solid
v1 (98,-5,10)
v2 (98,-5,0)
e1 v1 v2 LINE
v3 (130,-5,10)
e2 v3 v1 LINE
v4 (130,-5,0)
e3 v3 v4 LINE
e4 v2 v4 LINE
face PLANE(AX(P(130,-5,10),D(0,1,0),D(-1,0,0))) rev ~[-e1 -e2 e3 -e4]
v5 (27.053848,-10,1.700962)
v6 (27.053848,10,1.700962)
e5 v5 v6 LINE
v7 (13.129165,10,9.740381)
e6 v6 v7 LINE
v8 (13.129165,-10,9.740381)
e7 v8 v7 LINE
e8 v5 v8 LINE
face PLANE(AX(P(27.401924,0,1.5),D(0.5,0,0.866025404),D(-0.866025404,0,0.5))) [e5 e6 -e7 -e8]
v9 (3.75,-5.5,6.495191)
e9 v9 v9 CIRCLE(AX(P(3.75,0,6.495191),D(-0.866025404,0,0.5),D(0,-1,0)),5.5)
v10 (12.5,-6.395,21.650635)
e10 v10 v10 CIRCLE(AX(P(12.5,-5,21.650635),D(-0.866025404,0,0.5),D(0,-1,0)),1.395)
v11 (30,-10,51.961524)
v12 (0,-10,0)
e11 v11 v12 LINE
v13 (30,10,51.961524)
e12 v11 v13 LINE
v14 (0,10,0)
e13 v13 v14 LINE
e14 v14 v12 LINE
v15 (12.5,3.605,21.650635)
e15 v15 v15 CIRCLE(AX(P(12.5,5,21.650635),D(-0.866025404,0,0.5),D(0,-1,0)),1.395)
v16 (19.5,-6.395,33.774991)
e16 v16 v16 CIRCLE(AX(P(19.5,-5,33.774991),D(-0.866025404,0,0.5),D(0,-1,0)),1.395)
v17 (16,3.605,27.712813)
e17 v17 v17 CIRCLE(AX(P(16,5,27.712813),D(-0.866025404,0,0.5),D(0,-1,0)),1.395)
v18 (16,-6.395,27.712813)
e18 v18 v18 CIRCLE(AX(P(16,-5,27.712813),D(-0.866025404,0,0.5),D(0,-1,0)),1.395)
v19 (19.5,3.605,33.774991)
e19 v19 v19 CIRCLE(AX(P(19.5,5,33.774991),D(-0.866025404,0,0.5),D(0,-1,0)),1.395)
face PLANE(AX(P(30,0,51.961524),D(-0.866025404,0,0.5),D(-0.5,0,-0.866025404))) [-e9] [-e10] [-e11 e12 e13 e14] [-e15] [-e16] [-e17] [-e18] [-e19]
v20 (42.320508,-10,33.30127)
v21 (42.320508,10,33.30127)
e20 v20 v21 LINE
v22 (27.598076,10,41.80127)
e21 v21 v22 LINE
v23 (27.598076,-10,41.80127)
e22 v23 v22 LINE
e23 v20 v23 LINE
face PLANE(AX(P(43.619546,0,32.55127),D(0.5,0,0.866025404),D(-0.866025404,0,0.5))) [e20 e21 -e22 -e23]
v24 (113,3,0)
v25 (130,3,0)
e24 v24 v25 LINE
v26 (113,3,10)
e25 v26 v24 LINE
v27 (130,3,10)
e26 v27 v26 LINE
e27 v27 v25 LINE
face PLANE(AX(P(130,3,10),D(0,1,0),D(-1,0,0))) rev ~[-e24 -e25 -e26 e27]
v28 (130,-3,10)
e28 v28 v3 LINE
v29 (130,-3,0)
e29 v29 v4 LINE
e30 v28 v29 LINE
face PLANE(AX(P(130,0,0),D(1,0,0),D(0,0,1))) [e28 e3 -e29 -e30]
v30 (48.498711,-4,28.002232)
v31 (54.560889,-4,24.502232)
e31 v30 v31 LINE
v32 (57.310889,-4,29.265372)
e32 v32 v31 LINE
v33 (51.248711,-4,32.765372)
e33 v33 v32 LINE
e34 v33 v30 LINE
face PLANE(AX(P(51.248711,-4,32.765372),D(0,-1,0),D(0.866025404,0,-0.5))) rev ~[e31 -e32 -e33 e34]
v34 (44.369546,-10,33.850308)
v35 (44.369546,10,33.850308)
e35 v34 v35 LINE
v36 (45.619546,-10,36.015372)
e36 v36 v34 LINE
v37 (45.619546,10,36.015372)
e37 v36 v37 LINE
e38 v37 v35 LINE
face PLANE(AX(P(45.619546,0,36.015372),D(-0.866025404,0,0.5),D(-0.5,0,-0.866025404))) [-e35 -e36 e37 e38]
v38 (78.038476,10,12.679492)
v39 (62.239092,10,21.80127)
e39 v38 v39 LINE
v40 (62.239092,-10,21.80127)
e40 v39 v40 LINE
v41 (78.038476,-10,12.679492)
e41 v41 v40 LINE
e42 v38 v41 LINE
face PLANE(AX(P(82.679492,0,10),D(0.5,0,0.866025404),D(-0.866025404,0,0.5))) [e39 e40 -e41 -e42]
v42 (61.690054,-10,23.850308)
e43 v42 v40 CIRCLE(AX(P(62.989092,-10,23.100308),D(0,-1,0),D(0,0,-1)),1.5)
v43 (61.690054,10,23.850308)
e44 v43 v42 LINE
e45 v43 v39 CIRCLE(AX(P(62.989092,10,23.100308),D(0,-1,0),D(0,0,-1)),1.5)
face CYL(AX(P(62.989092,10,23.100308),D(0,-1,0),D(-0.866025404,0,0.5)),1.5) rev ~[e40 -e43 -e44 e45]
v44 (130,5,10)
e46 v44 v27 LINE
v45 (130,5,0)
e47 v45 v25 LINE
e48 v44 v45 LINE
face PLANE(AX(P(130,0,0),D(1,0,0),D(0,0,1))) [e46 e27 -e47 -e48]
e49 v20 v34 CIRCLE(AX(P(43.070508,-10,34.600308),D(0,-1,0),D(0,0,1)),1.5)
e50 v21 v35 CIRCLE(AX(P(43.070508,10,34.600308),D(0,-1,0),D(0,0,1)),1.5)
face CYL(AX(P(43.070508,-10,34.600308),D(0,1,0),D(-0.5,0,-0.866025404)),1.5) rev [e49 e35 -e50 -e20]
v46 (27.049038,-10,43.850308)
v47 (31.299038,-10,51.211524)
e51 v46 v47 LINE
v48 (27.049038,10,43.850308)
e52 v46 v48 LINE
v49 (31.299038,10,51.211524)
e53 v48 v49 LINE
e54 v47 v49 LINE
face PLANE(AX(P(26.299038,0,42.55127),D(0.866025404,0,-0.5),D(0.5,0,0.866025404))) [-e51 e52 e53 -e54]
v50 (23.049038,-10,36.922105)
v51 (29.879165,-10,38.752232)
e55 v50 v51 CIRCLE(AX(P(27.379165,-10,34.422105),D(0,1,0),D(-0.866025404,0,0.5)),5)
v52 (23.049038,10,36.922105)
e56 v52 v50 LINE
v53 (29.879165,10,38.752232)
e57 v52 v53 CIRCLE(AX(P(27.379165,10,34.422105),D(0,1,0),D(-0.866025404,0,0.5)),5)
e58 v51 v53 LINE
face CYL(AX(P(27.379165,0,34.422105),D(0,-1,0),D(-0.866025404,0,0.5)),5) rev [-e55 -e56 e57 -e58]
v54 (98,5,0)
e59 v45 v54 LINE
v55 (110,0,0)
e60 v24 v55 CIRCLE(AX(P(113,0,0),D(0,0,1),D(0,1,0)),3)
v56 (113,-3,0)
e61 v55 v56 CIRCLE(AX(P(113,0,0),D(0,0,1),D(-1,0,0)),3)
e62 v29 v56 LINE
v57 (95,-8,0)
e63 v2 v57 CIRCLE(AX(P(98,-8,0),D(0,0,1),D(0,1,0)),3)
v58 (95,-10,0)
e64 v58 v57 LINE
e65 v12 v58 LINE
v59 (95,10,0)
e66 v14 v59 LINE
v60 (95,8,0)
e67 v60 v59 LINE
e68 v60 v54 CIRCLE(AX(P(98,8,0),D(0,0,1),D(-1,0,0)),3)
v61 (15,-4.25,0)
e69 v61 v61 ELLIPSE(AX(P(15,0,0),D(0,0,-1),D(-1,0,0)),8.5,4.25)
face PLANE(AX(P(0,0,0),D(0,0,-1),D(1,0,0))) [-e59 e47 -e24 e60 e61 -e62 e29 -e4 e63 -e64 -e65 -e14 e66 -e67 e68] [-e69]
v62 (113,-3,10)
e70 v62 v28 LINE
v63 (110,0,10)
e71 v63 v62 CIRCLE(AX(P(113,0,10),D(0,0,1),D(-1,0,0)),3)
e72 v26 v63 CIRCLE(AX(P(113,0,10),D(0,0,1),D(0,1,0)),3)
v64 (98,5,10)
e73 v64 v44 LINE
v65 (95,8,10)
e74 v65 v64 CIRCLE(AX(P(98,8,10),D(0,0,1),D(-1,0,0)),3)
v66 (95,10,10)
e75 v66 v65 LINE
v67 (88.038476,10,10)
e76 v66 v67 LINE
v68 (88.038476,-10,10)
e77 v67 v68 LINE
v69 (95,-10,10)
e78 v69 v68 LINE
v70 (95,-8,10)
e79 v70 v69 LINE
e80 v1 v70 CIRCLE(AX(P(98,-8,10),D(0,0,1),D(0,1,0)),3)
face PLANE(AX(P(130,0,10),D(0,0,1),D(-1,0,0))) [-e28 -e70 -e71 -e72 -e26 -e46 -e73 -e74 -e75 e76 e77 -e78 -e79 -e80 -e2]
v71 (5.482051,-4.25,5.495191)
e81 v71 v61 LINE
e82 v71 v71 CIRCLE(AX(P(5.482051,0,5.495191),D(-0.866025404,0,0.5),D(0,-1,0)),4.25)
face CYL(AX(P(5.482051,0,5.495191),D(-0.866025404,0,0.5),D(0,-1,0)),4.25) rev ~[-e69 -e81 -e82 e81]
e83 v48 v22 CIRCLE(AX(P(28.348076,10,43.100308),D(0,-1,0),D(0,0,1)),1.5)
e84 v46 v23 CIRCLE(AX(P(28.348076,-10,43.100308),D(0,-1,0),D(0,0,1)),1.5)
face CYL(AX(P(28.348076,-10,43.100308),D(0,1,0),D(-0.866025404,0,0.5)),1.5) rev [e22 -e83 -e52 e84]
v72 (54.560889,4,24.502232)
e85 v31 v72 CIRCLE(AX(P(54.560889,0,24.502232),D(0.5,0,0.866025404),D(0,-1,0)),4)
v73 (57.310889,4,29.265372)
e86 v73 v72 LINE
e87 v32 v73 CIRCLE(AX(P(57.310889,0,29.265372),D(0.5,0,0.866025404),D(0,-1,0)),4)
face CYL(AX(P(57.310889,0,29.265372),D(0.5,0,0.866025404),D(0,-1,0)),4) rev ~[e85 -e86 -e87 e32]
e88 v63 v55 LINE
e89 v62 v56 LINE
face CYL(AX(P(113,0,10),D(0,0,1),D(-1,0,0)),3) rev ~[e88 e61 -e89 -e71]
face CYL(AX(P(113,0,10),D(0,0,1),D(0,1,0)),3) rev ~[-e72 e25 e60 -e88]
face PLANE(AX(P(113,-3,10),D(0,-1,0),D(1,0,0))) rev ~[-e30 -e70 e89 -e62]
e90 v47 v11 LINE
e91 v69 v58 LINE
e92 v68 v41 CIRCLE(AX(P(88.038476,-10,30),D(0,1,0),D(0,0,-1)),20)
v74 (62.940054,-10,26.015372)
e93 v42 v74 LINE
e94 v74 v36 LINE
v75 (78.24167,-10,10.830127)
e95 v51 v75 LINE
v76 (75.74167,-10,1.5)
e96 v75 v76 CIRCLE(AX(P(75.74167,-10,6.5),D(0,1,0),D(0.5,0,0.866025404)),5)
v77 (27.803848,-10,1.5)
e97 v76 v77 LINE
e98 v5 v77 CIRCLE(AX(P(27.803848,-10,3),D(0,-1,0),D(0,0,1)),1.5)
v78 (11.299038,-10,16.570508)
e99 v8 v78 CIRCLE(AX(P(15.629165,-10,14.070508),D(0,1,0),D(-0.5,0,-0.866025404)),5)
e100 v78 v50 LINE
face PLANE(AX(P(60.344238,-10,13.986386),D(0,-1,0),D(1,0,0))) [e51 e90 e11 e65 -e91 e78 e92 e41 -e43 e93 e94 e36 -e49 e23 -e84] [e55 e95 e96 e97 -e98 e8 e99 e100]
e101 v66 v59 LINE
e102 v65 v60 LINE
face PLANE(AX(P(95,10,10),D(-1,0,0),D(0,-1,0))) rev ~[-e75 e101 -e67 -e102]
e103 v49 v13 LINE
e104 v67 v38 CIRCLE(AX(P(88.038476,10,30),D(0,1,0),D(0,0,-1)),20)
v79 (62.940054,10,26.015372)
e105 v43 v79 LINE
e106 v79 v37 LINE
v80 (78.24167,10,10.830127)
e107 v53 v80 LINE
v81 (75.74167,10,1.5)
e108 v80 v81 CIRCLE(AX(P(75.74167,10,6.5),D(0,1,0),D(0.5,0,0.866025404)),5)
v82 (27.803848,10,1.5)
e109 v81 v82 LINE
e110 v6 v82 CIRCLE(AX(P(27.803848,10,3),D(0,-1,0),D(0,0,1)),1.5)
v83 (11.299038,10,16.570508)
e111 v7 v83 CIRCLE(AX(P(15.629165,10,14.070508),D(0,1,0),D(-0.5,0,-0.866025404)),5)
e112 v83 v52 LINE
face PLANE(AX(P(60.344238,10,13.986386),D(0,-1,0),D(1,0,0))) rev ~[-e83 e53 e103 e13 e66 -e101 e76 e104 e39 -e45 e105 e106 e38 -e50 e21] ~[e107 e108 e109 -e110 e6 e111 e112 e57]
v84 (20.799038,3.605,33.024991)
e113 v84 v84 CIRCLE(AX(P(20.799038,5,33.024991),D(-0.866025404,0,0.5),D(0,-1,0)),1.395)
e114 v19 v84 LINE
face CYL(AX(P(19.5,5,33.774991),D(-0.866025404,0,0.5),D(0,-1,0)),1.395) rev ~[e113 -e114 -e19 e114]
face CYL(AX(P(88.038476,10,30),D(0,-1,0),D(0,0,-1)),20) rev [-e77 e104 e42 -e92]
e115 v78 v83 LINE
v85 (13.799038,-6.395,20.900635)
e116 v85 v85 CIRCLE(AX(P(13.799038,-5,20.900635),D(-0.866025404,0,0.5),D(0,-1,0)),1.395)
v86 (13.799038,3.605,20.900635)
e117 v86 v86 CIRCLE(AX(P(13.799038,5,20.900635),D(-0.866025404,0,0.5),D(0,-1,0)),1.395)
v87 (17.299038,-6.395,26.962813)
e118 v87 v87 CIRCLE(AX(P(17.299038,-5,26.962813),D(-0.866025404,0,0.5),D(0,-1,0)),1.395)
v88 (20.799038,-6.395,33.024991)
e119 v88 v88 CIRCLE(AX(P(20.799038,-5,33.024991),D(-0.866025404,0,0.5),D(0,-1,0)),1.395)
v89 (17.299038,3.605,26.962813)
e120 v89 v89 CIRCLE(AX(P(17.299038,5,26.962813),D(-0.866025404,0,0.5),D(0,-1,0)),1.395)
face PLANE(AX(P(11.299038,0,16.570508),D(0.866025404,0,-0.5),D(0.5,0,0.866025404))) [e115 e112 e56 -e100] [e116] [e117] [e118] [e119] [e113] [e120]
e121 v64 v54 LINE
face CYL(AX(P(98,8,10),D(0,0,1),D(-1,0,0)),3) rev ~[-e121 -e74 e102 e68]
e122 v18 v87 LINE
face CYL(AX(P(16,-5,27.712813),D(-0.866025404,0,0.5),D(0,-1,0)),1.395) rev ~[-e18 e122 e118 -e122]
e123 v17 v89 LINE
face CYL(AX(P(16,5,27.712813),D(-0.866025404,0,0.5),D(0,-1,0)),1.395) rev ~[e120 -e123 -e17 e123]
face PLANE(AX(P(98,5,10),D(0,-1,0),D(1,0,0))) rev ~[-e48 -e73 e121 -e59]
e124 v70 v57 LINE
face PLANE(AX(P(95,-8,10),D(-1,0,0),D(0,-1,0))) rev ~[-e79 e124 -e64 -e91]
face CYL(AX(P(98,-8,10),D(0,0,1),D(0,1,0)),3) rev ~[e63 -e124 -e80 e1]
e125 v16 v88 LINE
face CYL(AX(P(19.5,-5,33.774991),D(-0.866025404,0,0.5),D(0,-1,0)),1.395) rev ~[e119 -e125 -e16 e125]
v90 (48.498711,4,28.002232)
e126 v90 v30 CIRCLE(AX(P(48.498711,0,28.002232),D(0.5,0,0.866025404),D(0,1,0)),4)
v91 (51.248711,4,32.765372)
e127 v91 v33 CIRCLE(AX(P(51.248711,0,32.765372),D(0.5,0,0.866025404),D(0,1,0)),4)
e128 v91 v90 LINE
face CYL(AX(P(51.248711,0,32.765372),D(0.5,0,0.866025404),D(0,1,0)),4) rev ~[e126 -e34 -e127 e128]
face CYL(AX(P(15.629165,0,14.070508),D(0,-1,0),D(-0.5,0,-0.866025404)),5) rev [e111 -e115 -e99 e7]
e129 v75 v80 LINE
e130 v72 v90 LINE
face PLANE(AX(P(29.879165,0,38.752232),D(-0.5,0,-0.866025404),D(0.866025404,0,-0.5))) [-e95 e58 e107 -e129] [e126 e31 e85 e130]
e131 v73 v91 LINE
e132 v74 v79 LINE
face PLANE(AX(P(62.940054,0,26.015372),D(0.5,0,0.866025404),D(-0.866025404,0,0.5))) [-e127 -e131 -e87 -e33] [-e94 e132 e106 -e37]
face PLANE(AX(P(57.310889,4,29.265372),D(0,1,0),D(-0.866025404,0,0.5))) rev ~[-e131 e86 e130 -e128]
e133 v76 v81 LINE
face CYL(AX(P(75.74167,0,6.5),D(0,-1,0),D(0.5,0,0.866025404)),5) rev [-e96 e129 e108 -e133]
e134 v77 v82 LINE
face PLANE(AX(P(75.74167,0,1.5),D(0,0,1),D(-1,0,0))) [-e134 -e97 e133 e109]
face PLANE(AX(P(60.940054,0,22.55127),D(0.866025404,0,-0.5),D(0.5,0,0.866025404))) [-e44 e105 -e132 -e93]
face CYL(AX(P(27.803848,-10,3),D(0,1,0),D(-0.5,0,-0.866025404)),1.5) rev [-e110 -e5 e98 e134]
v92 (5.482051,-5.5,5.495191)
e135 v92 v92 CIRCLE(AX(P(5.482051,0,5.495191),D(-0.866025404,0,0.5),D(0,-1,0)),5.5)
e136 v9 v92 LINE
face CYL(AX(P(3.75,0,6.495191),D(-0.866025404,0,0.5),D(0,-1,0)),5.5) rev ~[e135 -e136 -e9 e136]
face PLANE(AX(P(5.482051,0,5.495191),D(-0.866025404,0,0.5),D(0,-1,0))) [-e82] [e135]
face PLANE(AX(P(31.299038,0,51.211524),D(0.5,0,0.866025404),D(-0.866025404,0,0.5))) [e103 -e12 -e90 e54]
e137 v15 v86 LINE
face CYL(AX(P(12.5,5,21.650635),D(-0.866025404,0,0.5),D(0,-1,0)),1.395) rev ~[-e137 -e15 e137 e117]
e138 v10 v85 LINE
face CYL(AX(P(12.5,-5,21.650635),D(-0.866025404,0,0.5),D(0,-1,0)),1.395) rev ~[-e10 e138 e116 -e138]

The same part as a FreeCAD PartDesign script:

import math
import FreeCAD as App
import Part
import Sketcher

V = App.Vector
Q = App.Units.Quantity


def edges_at(feature, points):
    """Names of the edges that pass closest to the given points."""
    edges = feature.Shape.Edges
    near = lambda p: min(range(len(edges)), key=lambda i: edges[i].distToShape(Part.Vertex(*p))[0])
    return sorted({f"Edge{near(p) + 1}" for p in points})


def add_polygon(sketch, points):
    """Adds a closed chain of lines whose ends are joined by coincident constraints."""
    first, n = sketch.GeometryCount, len(points)
    for a, b in zip(points, points[1:] + points[:1]):
        sketch.addGeometry(Part.LineSegment(App.Vector(*a, 0), App.Vector(*b, 0)), False)
    for i in range(n):
        sketch.addConstraint(Sketcher.Constraint("Coincident", first + i, 2, first + (i + 1) % n, 1))

doc = App.newDocument("Part")
body = doc.addObject("PartDesign::Body", "Body")

sketch1 = body.newObject("Sketcher::SketchObject", "Sketch")
sketch1.AttachmentSupport = (doc.getObject("XZ_Plane"), [""])
sketch1.MapMode = "FlatFace"
add_polygon(sketch1, [(30, 51.961524), (0, 0), (130, 0), (130, 10), (82.679492, 10), (60.940054, 22.55127), (62.940054, 26.015372), (45.619546, 36.015372), (43.619546, 32.55127), (26.299038, 42.55127), (31.299038, 51.211524)])
sketch1.addGeometry(Part.LineSegment(V(11.299038, 16.570508, 0), V(23.049038, 36.922105, 0)), False)
sketch1.addGeometry(Part.ArcOfCircle(Part.Circle(V(27.379165, 34.422105, 0), V(0, 0, 1), 5), math.radians(60), math.radians(150)), False)
sketch1.addGeometry(Part.LineSegment(V(29.879165, 38.752232, 0), V(78.24167, 10.830127, 0)), False)
sketch1.addGeometry(Part.ArcOfCircle(Part.Circle(V(75.74167, 6.5, 0), V(0, 0, 1), 5), math.radians(-90), math.radians(60)), False)
sketch1.addGeometry(Part.LineSegment(V(75.74167, 1.5, 0), V(27.401924, 1.5, 0)), False)
sketch1.addGeometry(Part.LineSegment(V(27.401924, 1.5, 0), V(13.129165, 9.740381, 0)), False)
sketch1.addGeometry(Part.ArcOfCircle(Part.Circle(V(15.629165, 14.070508, 0), V(0, 0, 1), 5), math.radians(150), math.radians(240)), False)
sketch1.addConstraint([
    Sketcher.Constraint("Tangent", 11, 2, 12, 2),
    Sketcher.Constraint("Tangent", 12, 1, 13, 1),
    Sketcher.Constraint("Tangent", 13, 2, 14, 2),
    Sketcher.Constraint("Tangent", 14, 1, 15, 1),
    Sketcher.Constraint("Coincident", 15, 2, 16, 1),
    Sketcher.Constraint("Tangent", 16, 2, 17, 2),
    Sketcher.Constraint("Tangent", 17, 1, 11, 1),
    Sketcher.Constraint("Horizontal", 1),
    Sketcher.Constraint("Vertical", 2),
    Sketcher.Constraint("Horizontal", 3),
    Sketcher.Constraint("Horizontal", 15),
    Sketcher.Constraint("Coincident", 0, 2, -1, 1),
    Sketcher.Constraint("Equal", 12, 14),
    Sketcher.Constraint("Equal", 14, 17),
    Sketcher.Constraint("Perpendicular", 0, 4),
    Sketcher.Constraint("Perpendicular", 4, 5),
    Sketcher.Constraint("Perpendicular", 5, 6),
    Sketcher.Constraint("Perpendicular", 6, 7),
    Sketcher.Constraint("Perpendicular", 7, 8),
    Sketcher.Constraint("Perpendicular", 8, 9),
    Sketcher.Constraint("Perpendicular", 9, 10),
    Sketcher.Constraint("Perpendicular", 10, 11),
    Sketcher.Constraint("Perpendicular", 11, 13),
    Sketcher.Constraint("Parallel", 13, 16),
    Sketcher.Constraint("Equal", 5, 7),
    Sketcher.Constraint("Equal", 6, 8),
    Sketcher.Constraint("Radius", 12, 5.0),
    Sketcher.Constraint("DistanceX", 1, 1, 1, 2, 130.0),
    Sketcher.Constraint("DistanceY", 2, 1, 2, 2, 10.0),
    Sketcher.Constraint("Angle", 0, Q("-120 deg")),
    Sketcher.Constraint("Distance", 0, 60.0),
    Sketcher.Constraint("Distance", 5, 4.0),
    Sketcher.Constraint("Distance", 6, 20.0),
    Sketcher.Constraint("Distance", 9, 10.0),
    Sketcher.Constraint("Distance", 10, 1.5),
    Sketcher.Constraint("Distance", 11, 23.5),
    Sketcher.Constraint("DistanceY", -1, 1, 14, 3, 6.5),
    Sketcher.Constraint("DistanceX", 11, 2, 8, 2, 3.25),
    Sketcher.Constraint("Distance", 13, 55.84421),
])
pad1 = body.newObject("PartDesign::Pad", "Pad")
pad1.Profile = sketch1
pad1.Type = "TwoLengths"
pad1.Length = 10
pad1.Length2 = 10

sketch2 = body.newObject("Sketcher::SketchObject", "Sketch001")
sketch2.AttachmentSupport = (doc.getObject("XY_Plane"), [""])
sketch2.MapMode = "FlatFace"
sketch2.AttachmentOffset = App.Placement(V(0, 0, 10), App.Rotation())
sketch2.addGeometry([
    Part.LineSegment(V(98, 5, 0), V(130, 5, 0)),
    Part.LineSegment(V(130, 5, 0), V(130, 10, 0)),
    Part.LineSegment(V(130, 10, 0), V(95, 10, 0)),
    Part.LineSegment(V(95, 10, 0), V(95, 8, 0)),
    Part.ArcOfCircle(Part.Circle(V(98, 8, 0), V(0, 0, 1), 3), math.radians(180), math.radians(270)),
    Part.LineSegment(V(130, 3, 0), V(113, 3, 0)),
    Part.ArcOfCircle(Part.Circle(V(113, 0, 0), V(0, 0, 1), 3), math.radians(90), math.radians(180)),
    Part.ArcOfCircle(Part.Circle(V(113, 0, 0), V(0, 0, 1), 3), math.radians(180), math.radians(270)),
    Part.LineSegment(V(113, -3, 0), V(130, -3, 0)),
    Part.LineSegment(V(130, -3, 0), V(130, 3, 0)),
    Part.ArcOfCircle(Part.Circle(V(98, -8, 0), V(0, 0, 1), 3), math.radians(90), math.radians(180)),
    Part.LineSegment(V(95, -8, 0), V(95, -10, 0)),
    Part.LineSegment(V(95, -10, 0), V(130, -10, 0)),
    Part.LineSegment(V(130, -10, 0), V(130, -5, 0)),
    Part.LineSegment(V(130, -5, 0), V(98, -5, 0)),
], False)
sketch2.addConstraint([
    Sketcher.Constraint("Coincident", 0, 2, 1, 1),
    Sketcher.Constraint("Coincident", 1, 2, 2, 1),
    Sketcher.Constraint("Coincident", 2, 2, 3, 1),
    Sketcher.Constraint("Tangent", 3, 2, 4, 1),
    Sketcher.Constraint("Tangent", 4, 2, 0, 1),
    Sketcher.Constraint("Tangent", 5, 2, 6, 1),
    Sketcher.Constraint("Tangent", 6, 2, 7, 1),
    Sketcher.Constraint("Tangent", 7, 2, 8, 1),
    Sketcher.Constraint("Coincident", 8, 2, 9, 1),
    Sketcher.Constraint("Coincident", 9, 2, 5, 1),
    Sketcher.Constraint("Tangent", 10, 2, 11, 1),
    Sketcher.Constraint("Coincident", 11, 2, 12, 1),
    Sketcher.Constraint("Coincident", 12, 2, 13, 1),
    Sketcher.Constraint("Coincident", 13, 2, 14, 1),
    Sketcher.Constraint("Tangent", 14, 2, 10, 1),
    Sketcher.Constraint("Horizontal", 0),
    Sketcher.Constraint("Vertical", 1),
    Sketcher.Constraint("Horizontal", 2),
    Sketcher.Constraint("Vertical", 3),
    Sketcher.Constraint("Horizontal", 5),
    Sketcher.Constraint("Horizontal", 8),
    Sketcher.Constraint("Vertical", 9),
    Sketcher.Constraint("Vertical", 11),
    Sketcher.Constraint("Horizontal", 12),
    Sketcher.Constraint("Vertical", 13),
    Sketcher.Constraint("Horizontal", 14),
    Sketcher.Constraint("Equal", 4, 6),
    Sketcher.Constraint("Equal", 6, 7),
    Sketcher.Constraint("Equal", 7, 10),
    Sketcher.Constraint("Symmetric", 4, 3, 10, 3, -1),
    Sketcher.Constraint("Symmetric", 1, 2, 12, 2, -1),
    Sketcher.Constraint("PointOnObject", 6, 3, -1),
    Sketcher.Constraint("PointOnObject", 6, 2, -1),
    Sketcher.Constraint("Vertical", 1, 2, 8, 2),
    Sketcher.Constraint("Radius", 4, 3.0),
    Sketcher.Constraint("DistanceX", 0, 1, 0, 2, 32.0),
    Sketcher.Constraint("DistanceX", 5, 2, 5, 1, 17.0),
    Sketcher.Constraint("DistanceY", 1, 1, 1, 2, 5.0),
    Sketcher.Constraint("DistanceX", -1, 1, 4, 3, 98.0),
    Sketcher.Constraint("DistanceY", -1, 1, 4, 3, 8.0),
])
pocket1 = body.newObject("PartDesign::Pocket", "Pocket")
pocket1.Profile = sketch2
pocket1.Type = "ThroughAll"

sketch3 = body.newObject("Sketcher::SketchObject", "Sketch002")
sketch3.Placement = App.Placement(V(27, 0, 46.765372), App.Rotation(V(0.866025404, 0, -0.5), V(0, 1, 0), V(0.5, 0, 0.866025404), "ZXY"))
sketch3.addGeometry([
    Part.LineSegment(V(28, -4, 0), V(35, -4, 0)),
    Part.ArcOfCircle(Part.Circle(V(35, 0, 0), V(0, 0, 1), 4), math.radians(-90), math.radians(90)),
    Part.LineSegment(V(35, 4, 0), V(28, 4, 0)),
    Part.ArcOfCircle(Part.Circle(V(28, 0, 0), V(0, 0, 1), 4), math.radians(90), math.radians(270)),
], False)
sketch3.addConstraint([
    Sketcher.Constraint("Tangent", 0, 2, 1, 1),
    Sketcher.Constraint("Tangent", 1, 2, 2, 1),
    Sketcher.Constraint("Tangent", 2, 2, 3, 1),
    Sketcher.Constraint("Tangent", 3, 2, 0, 1),
    Sketcher.Constraint("Horizontal", 0),
    Sketcher.Constraint("Horizontal", 2),
    Sketcher.Constraint("PointOnObject", 1, 3, -1),
    Sketcher.Constraint("Radius", 1, 4.0),
    Sketcher.Constraint("DistanceX", 0, 1, 0, 2, 7.0),
    Sketcher.Constraint("DistanceX", -1, 1, 1, 3, 35.0),
])
pocket2 = body.newObject("PartDesign::Pocket", "Pocket001")
pocket2.Profile = sketch3
pocket2.Length = 5.5

sketch4 = body.newObject("Sketcher::SketchObject", "Sketch003")
sketch4.Placement = App.Placement(V(0, 0, 0), App.Rotation(V(0, -1, 0), V(0.5, 0, 0.866025404), V(-0.866025404, 0, 0.5), "ZXY"))
sketch4.addGeometry([
    Part.Circle(V(-5, 39, 0), V(0, 0, 1), 1.395),
    Part.Circle(V(5, 39, 0), V(0, 0, 1), 1.395),
    Part.Circle(V(-5, 32, 0), V(0, 0, 1), 1.395),
    Part.Circle(V(5, 32, 0), V(0, 0, 1), 1.395),
    Part.Circle(V(-5, 25, 0), V(0, 0, 1), 1.395),
    Part.Circle(V(5, 25, 0), V(0, 0, 1), 1.395),
], False)
sketch4.addConstraint([
    Sketcher.Constraint("Equal", 0, 1),
    Sketcher.Constraint("Equal", 1, 2),
    Sketcher.Constraint("Equal", 2, 3),
    Sketcher.Constraint("Equal", 3, 4),
    Sketcher.Constraint("Equal", 4, 5),
    Sketcher.Constraint("Symmetric", 0, 3, 1, 3, -2),
    Sketcher.Constraint("Symmetric", 2, 3, 3, 3, -2),
    Sketcher.Constraint("Symmetric", 4, 3, 5, 3, -2),
    Sketcher.Constraint("Vertical", 0, 3, 2, 3),
    Sketcher.Constraint("Vertical", 2, 3, 4, 3),
    Sketcher.Constraint("Diameter", 0, 2.79),
    Sketcher.Constraint("DistanceX", 0, 3, -1, 1, 5.0),
    Sketcher.Constraint("DistanceY", -1, 1, 0, 3, 39.0),
    Sketcher.Constraint("DistanceY", -1, 1, 2, 3, 32.0),
    Sketcher.Constraint("DistanceY", -1, 1, 4, 3, 25.0),
])
pocket3 = body.newObject("PartDesign::Pocket", "Pocket002")
pocket3.Profile = sketch4
pocket3.Length = 1.5

sketch5 = body.newObject("Sketcher::SketchObject", "Sketch004")
sketch5.Placement = App.Placement(V(0, 0, 0), App.Rotation(V(0, -1, 0), V(0.5, 0, 0.866025404), V(-0.866025404, 0, 0.5), "ZXY"))
sketch5.addGeometry(Part.Circle(V(0, 7.5, 0), V(0, 0, 1), 5.5), False)
sketch5.addConstraint([
    Sketcher.Constraint("PointOnObject", 0, 3, -2),
    Sketcher.Constraint("Diameter", 0, 11.0),
    Sketcher.Constraint("DistanceY", -1, 1, 0, 3, 7.5),
])
pocket4 = body.newObject("PartDesign::Pocket", "Pocket003")
pocket4.Profile = sketch5
pocket4.Length = 2

sketch6 = body.newObject("Sketcher::SketchObject", "Sketch005")
sketch6.Placement = App.Placement(V(1.732051, 0, -1), App.Rotation(V(0, -1, 0), V(0.5, 0, 0.866025404), V(-0.866025404, 0, 0.5), "ZXY"))
sketch6.addGeometry(Part.Circle(V(0, 7.5, 0), V(0, 0, 1), 4.25), False)
sketch6.addConstraint([
    Sketcher.Constraint("PointOnObject", 0, 3, -2),
    Sketcher.Constraint("Diameter", 0, 8.5),
    Sketcher.Constraint("DistanceY", -1, 1, 0, 3, 7.5),
])
pocket5 = body.newObject("PartDesign::Pocket", "Pocket004")
pocket5.Profile = sketch6
pocket5.Type = "ThroughAll"
doc.recompute()

fillet = body.newObject("PartDesign::Fillet", "Fillet")
fillet.Base = (pocket5, edges_at(pocket5, [
    (26.299, 0, 42.551),
    (60.94, 0, 22.551),
    (27.402, 0, 1.5),
    (43.62, 0, 32.551),
]))
fillet.Radius = 1.5
doc.recompute()

fillet2 = body.newObject("PartDesign::Fillet", "Fillet001")
fillet2.Base = (fillet, edges_at(fillet, [(82.679, 0, 10)]))
fillet2.Radius = 20

doc.recompute()
